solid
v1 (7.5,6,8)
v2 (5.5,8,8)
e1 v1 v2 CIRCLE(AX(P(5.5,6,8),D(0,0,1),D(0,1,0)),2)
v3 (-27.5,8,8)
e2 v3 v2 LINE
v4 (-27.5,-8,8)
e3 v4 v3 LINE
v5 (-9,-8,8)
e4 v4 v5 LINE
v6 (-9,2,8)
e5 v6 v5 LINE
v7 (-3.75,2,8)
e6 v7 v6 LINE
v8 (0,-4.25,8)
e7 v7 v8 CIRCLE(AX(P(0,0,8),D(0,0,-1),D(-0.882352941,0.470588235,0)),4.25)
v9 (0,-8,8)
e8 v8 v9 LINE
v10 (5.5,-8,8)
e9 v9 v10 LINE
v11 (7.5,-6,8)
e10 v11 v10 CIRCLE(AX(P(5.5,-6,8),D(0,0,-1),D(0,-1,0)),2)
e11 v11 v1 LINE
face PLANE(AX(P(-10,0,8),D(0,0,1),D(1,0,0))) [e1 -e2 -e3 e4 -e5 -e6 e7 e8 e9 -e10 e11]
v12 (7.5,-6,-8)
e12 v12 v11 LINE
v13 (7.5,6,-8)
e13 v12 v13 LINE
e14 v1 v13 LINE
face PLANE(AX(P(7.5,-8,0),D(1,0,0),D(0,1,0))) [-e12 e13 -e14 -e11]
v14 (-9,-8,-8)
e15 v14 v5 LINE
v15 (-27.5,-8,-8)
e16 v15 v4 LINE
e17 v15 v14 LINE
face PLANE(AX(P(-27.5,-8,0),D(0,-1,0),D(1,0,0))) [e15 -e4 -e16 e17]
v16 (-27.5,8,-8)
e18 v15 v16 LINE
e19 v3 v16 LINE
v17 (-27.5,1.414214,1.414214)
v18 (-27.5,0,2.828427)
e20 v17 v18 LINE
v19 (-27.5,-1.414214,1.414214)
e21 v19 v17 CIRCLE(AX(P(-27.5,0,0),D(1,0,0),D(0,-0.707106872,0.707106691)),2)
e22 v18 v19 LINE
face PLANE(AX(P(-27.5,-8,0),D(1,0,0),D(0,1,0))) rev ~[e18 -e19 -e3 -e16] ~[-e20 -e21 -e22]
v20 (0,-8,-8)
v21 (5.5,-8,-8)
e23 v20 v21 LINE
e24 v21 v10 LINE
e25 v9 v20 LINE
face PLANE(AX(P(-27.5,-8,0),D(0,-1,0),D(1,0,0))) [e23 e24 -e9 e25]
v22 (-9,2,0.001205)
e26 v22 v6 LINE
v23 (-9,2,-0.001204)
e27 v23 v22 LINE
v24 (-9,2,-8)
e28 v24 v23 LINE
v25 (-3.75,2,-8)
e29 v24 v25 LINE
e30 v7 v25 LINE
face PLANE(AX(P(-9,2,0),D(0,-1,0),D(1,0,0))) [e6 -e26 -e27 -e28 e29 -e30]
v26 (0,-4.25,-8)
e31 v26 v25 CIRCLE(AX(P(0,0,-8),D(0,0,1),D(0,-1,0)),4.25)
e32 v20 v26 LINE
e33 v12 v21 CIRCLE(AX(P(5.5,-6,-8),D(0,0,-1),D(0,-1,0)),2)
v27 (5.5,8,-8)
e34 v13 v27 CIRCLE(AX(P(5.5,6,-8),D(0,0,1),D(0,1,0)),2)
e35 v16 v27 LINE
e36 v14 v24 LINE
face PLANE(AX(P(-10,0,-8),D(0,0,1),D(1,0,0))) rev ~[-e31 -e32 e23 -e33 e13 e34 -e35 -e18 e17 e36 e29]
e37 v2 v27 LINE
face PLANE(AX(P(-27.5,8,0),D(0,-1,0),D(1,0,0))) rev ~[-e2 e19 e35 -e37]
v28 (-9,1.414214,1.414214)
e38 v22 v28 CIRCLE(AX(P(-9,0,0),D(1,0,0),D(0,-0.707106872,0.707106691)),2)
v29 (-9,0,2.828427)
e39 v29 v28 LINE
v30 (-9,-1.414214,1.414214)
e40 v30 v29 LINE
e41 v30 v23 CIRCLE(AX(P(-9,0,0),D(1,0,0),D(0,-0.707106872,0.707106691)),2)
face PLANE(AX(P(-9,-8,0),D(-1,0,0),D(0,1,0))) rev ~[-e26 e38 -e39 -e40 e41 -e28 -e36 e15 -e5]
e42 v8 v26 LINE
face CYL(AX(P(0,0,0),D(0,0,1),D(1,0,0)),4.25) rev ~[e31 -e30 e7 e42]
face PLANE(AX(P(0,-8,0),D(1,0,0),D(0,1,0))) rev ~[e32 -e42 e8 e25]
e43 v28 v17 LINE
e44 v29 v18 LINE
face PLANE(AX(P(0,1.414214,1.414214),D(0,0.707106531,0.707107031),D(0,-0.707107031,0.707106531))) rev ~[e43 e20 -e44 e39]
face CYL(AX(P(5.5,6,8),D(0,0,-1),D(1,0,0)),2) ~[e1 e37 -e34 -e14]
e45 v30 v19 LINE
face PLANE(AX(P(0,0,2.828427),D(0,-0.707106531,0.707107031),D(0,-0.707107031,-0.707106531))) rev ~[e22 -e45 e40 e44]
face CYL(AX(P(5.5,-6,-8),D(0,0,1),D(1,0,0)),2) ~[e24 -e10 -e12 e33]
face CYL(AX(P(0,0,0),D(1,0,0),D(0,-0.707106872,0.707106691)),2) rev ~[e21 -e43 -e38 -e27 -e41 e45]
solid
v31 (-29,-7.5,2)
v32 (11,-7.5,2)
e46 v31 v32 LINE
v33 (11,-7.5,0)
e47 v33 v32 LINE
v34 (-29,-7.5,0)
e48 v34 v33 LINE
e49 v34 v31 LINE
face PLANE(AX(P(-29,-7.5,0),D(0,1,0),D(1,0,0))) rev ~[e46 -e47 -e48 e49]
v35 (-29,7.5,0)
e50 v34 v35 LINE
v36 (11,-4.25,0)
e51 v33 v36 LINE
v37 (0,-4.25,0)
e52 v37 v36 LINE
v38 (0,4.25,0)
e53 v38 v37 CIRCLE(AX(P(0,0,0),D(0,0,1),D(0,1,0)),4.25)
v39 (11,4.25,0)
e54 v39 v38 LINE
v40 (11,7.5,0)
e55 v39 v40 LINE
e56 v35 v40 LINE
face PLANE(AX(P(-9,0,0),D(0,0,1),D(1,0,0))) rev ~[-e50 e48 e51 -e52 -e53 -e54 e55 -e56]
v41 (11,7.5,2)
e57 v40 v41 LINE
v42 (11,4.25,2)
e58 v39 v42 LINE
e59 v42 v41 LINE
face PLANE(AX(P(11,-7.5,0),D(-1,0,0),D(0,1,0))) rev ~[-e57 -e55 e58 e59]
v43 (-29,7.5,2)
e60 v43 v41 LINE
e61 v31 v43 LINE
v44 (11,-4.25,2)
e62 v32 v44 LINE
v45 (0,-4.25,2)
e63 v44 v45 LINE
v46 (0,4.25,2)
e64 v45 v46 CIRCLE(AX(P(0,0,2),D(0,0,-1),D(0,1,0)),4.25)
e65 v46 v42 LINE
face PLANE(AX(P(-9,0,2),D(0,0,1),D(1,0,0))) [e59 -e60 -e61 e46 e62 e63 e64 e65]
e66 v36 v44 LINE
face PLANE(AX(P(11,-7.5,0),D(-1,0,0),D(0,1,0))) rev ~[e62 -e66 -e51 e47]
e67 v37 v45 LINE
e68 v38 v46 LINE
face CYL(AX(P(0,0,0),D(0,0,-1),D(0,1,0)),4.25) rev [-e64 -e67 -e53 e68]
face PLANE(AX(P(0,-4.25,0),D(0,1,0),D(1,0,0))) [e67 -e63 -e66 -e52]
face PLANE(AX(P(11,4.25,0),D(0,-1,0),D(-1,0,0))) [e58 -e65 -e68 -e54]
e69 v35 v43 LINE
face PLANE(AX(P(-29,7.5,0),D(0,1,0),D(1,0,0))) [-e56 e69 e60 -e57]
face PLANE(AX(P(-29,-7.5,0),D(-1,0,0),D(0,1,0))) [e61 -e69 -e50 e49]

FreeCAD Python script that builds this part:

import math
import FreeCAD as App
import Part
import Sketcher
from FreeCAD import Vector


def edges_at(feature, points):
    """Names of the edges that pass closest to the given points."""
    edges = feature.Shape.Edges
    near = lambda p: min(range(len(edges)), key=lambda i: edges[i].distToShape(Part.Vertex(*p))[0])
    return sorted({f"Edge{near(p) + 1}" for p in points})


def add_polygon(sketch, points):
    """Adds a closed chain of lines whose ends are joined by coincident constraints."""
    first, n = sketch.GeometryCount, len(points)
    for a, b in zip(points, points[1:] + points[:1]):
        sketch.addGeometry(Part.LineSegment(App.Vector(*a, 0), App.Vector(*b, 0)), False)
    for i in range(n):
        sketch.addConstraint(Sketcher.Constraint("Coincident", first + i, 2, first + (i + 1) % n, 1))

doc = App.newDocument("Part")
body = doc.addObject("PartDesign::Body", "Body")

# Sketch on XY plane
sketch1 = body.newObject("Sketcher::SketchObject", "Sketch")
sketch1.AttachmentSupport = (doc.getObject("XY_Plane"), [""])
sketch1.MapMode = "FlatFace"
add_polygon(sketch1, [(-29, 8), (-29, -8), (11, -8), (11, 8)])  # lines 0-3
sketch1.addConstraint(Sketcher.Constraint("Vertical", 0))
sketch1.addConstraint(Sketcher.Constraint("Horizontal", 1))
sketch1.addConstraint(Sketcher.Constraint("Vertical", 2))
sketch1.addConstraint(Sketcher.Constraint("Horizontal", 3))
sketch1.addConstraint(Sketcher.Constraint("DistanceX", 1, 1, 1, 2, 40.0))
sketch1.addConstraint(Sketcher.Constraint("DistanceY", 0, 2, 0, 1, 15.0))
sketch1.addConstraint(Sketcher.Constraint("DistanceX", 0, 2, -1, 1, 29.0))
sketch1.addConstraint(Sketcher.Constraint("DistanceY", 0, 2, -1, 1, 7.5))
pad1 = body.newObject("PartDesign::Pad", "Pad")
pad1.Profile = sketch1
pad1.Length = 2

# Sketch on XY plane
sketch2 = body.newObject("Sketcher::SketchObject", "Sketch001")
sketch2.AttachmentSupport = (doc.getObject("XY_Plane"), [""])
sketch2.MapMode = "FlatFace"
sketch2.addGeometry(Part.ArcOfCircle(Part.Circle(Vector(0, 0, 0), Vector(0, 0, 1), 4.2), math.radians(90), math.radians(270)), False)
sketch2.addGeometry(Part.LineSegment(Vector(0, -4.2, 0), Vector(11, -4.2, 0)), False)
sketch2.addGeometry(Part.ArcOfCircle(Part.Circle(Vector(11, 0, 0), Vector(0, 0, 1), 4.2), math.radians(-90), math.radians(90)), False)
sketch2.addGeometry(Part.LineSegment(Vector(11, 4.2, 0), Vector(0, 4.2, 0)), False)
sketch2.addConstraint(Sketcher.Constraint("Tangent", 0, 2, 1, 1))
sketch2.addConstraint(Sketcher.Constraint("Tangent", 1, 2, 2, 1))
sketch2.addConstraint(Sketcher.Constraint("Tangent", 2, 2, 3, 1))
sketch2.addConstraint(Sketcher.Constraint("Tangent", 3, 2, 0, 1))
sketch2.addConstraint(Sketcher.Constraint("Horizontal", 1))
sketch2.addConstraint(Sketcher.Constraint("Horizontal", 3))
sketch2.addConstraint(Sketcher.Constraint("Coincident", 0, 3, -1, 1))
sketch2.addConstraint(Sketcher.Constraint("DistanceX", 1, 1, 1, 2, 11.0))
sketch2.addConstraint(Sketcher.Constraint("Radius", 0, 4.25))
pocket1 = body.newObject("PartDesign::Pocket", "Pocket")
pocket1.Profile = sketch2
pocket1.Type = "ThroughAll"
pocket1.Midplane = True
body2 = doc.addObject("PartDesign::Body", "Body001")

# Sketch on XY plane
sketch3 = body2.newObject("Sketcher::SketchObject", "Sketch002")
sketch3.AttachmentSupport = (doc.getObject("XY_Plane001"), [""])
sketch3.MapMode = "FlatFace"
add_polygon(sketch3, [(-28, 8), (-28, -8), (8, -8), (8, 8)])  # lines 0-3
sketch3.addConstraint(Sketcher.Constraint("Vertical", 0))
sketch3.addConstraint(Sketcher.Constraint("Horizontal", 1))
sketch3.addConstraint(Sketcher.Constraint("Vertical", 2))
sketch3.addConstraint(Sketcher.Constraint("Horizontal", 3))
sketch3.addConstraint(Sketcher.Constraint("DistanceX", 1, 1, 1, 2, 35.0))
sketch3.addConstraint(Sketcher.Constraint("DistanceY", 0, 2, 0, 1, 16.0))
sketch3.addConstraint(Sketcher.Constraint("DistanceY", 0, 2, -1, 1, 8.0))
sketch3.addConstraint(Sketcher.Constraint("DistanceX", 0, 2, -1, 1, 27.5))
pad2 = body2.newObject("PartDesign::Pad", "Pad001")
pad2.Profile = sketch3
pad2.Length = 16
pad2.Midplane = True

# Sketch on XY plane
sketch4 = body2.newObject("Sketcher::SketchObject", "Sketch003")
sketch4.AttachmentSupport = (doc.getObject("XY_Plane001"), [""])
sketch4.MapMode = "FlatFace"
sketch4.addGeometry(Part.Circle(Vector(0, 0, 0), Vector(0, 0, 1), 4.2), False)
sketch4.addConstraint(Sketcher.Constraint("Coincident", 0, 3, -1, 1))
sketch4.addConstraint(Sketcher.Constraint("Diameter", 0, 8.5))
pocket2 = body2.newObject("PartDesign::Pocket", "Pocket001")
pocket2.Profile = sketch4
pocket2.Type = "ThroughAll"
pocket2.Midplane = True

# Sketch on XY plane
sketch5 = body2.newObject("Sketcher::SketchObject", "Sketch004")
sketch5.AttachmentSupport = (doc.getObject("XY_Plane001"), [""])
sketch5.MapMode = "FlatFace"
add_polygon(sketch5, [(-9, 2), (-9, -8), (0, -8), (0, 2)])  # lines 0-3
sketch5.addConstraint(Sketcher.Constraint("Vertical", 0))
sketch5.addConstraint(Sketcher.Constraint("Horizontal", 1))
sketch5.addConstraint(Sketcher.Constraint("Vertical", 2))
sketch5.addConstraint(Sketcher.Constraint("Horizontal", 3))
sketch5.addConstraint(Sketcher.Constraint("PointOnObject", 1, 2, -2))
sketch5.addConstraint(Sketcher.Constraint("DistanceX", 1, 1, 1, 2, 9.0))
sketch5.addConstraint(Sketcher.Constraint("DistanceY", 0, 2, 0, 1, 10.0))
sketch5.addConstraint(Sketcher.Constraint("DistanceY", 0, 2, -1, 1, 8.0))
pocket3 = body2.newObject("PartDesign::Pocket", "Pocket002")
pocket3.Profile = sketch5
pocket3.Type = "ThroughAll"
pocket3.Midplane = True
doc.recompute()

fillet = body2.newObject("PartDesign::Fillet", "Fillet")
fillet.Base = (pocket3, edges_at(pocket3, [(7.5, -8, 0), (7.5, 8, 0)]))
fillet.Radius = 2

# Sketch on YZ plane
sketch6 = body2.newObject("Sketcher::SketchObject", "Sketch005")
sketch6.AttachmentSupport = (doc.getObject("YZ_Plane001"), [""])
sketch6.MapMode = "FlatFace"
sketch6.addGeometry(Part.LineSegment(Vector(0, 2.8, 0), Vector(-1.4, 1.4, 0)), False)
sketch6.addGeometry(Part.ArcOfCircle(Part.Circle(Vector(0, 0, 0), Vector(0, 0, 1), 2), math.radians(135), math.radians(405)), False)
sketch6.addGeometry(Part.LineSegment(Vector(1.4, 1.4, 0), Vector(0, 2.8, 0)), False)
sketch6.addConstraint(Sketcher.Constraint("Tangent", 0, 2, 1, 1))
sketch6.addConstraint(Sketcher.Constraint("Tangent", 1, 2, 2, 1))
sketch6.addConstraint(Sketcher.Constraint("Coincident", 2, 2, 0, 1))
sketch6.addConstraint(Sketcher.Constraint("Coincident", 1, 3, -1, 1))
sketch6.addConstraint(Sketcher.Constraint("PointOnObject", 2, 2, -2))
sketch6.addConstraint(Sketcher.Constraint("Perpendicular", 0, 2))
sketch6.addConstraint(Sketcher.Constraint("Radius", 1, 2.0))
pocket4 = body2.newObject("PartDesign::Pocket", "Pocket003")
pocket4.Profile = sketch6
pocket4.Type = "ThroughAll"

doc.recompute()
